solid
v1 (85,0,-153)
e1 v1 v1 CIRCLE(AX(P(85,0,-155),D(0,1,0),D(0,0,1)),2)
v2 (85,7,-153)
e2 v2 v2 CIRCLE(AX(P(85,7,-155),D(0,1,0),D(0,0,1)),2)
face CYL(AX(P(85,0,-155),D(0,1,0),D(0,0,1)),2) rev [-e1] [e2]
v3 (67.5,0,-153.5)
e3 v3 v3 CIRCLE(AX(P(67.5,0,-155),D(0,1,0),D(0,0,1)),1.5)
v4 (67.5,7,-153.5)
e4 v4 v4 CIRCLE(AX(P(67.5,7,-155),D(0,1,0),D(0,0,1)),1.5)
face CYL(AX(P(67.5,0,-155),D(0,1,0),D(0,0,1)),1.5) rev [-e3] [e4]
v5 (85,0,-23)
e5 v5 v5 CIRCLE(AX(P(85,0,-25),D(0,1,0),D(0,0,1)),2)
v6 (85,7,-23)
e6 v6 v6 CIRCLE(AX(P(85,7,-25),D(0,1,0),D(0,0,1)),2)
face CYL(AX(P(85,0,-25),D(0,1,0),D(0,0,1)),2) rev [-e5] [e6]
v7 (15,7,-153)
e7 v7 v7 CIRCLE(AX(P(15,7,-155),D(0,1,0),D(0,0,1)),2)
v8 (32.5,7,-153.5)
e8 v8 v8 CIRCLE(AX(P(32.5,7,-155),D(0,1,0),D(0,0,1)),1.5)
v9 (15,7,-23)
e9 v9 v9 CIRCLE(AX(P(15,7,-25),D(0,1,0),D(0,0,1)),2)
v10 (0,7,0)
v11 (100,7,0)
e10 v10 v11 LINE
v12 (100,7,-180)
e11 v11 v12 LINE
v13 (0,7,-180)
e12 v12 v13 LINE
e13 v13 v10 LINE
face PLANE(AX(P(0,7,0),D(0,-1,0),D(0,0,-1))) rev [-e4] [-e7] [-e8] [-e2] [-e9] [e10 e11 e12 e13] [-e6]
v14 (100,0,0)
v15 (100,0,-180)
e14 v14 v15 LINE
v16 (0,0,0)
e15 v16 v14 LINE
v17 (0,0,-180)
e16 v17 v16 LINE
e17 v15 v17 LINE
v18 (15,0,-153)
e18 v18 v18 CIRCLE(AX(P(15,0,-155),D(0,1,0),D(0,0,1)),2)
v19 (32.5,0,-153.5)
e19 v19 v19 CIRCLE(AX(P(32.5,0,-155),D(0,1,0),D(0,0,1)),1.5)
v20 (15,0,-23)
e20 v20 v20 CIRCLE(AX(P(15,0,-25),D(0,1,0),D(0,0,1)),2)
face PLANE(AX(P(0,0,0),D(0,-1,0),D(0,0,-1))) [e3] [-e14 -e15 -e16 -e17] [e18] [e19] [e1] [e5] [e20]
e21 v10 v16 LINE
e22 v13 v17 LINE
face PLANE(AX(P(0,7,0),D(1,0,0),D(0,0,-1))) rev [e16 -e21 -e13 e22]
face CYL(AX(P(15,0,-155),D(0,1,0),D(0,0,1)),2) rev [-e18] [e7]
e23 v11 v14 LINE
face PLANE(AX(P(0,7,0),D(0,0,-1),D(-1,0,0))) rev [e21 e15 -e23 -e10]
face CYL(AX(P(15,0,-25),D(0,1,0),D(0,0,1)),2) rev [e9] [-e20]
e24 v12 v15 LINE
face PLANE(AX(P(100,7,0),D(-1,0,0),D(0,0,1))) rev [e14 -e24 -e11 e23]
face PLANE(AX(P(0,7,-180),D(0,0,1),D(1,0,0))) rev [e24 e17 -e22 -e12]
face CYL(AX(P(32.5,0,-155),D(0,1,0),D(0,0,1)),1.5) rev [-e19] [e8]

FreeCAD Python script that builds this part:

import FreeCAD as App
import Part
import Sketcher
from FreeCAD import Vector
Q = App.Units.Quantity

doc = App.newDocument("Part")
body = doc.addObject("PartDesign::Body", "Body")

# Sketch on XZ plane
sketch1 = body.newObject("Sketcher::SketchObject", "Sketch")
sketch1.AttachmentSupport = (doc.getObject("XZ_Plane"), [""])
sketch1.MapMode = "FlatFace"
sketch1.addGeometry(Part.LineSegment(Vector(0, -180, 0), Vector(0, 0, 0)), False)
sketch1.addGeometry(Part.LineSegment(Vector(0, 0, 0), Vector(100, 0, 0)), False)
sketch1.addGeometry(Part.LineSegment(Vector(100, 0, 0), Vector(100, -180, 0)), False)
sketch1.addGeometry(Part.LineSegment(Vector(100, -180, 0), Vector(0, -180, 0)), False)
sketch1.addConstraint(Sketcher.Constraint("Coincident", 0, 2, 1, 1))
sketch1.addConstraint(Sketcher.Constraint("Coincident", 1, 2, 2, 1))
sketch1.addConstraint(Sketcher.Constraint("Coincident", 2, 2, 3, 1))
sketch1.addConstraint(Sketcher.Constraint("Coincident", 3, 2, 0, 1))
sketch1.addConstraint(Sketcher.Constraint("Vertical", 0))
sketch1.addConstraint(Sketcher.Constraint("Horizontal", 1))
sketch1.addConstraint(Sketcher.Constraint("Vertical", 2))
sketch1.addConstraint(Sketcher.Constraint("Horizontal", 3))
sketch1.addConstraint(Sketcher.Constraint("Coincident", 0, 2, -1, 1))
sketch1.addConstraint(Sketcher.Constraint("DistanceX", 1, 1, 1, 2, Q("100 mm")))
sketch1.addConstraint(Sketcher.Constraint("DistanceY", 0, 1, 0, 2, Q("180 mm")))
pad1 = body.newObject("PartDesign::Pad", "Pad")
pad1.Profile = sketch1
pad1.Length = 7
pad1.Reversed = True

# Sketch on XZ plane
sketch2 = body.newObject("Sketcher::SketchObject", "Sketch001")
sketch2.AttachmentSupport = (doc.getObject("XZ_Plane"), [""])
sketch2.MapMode = "FlatFace"
sketch2.AttachmentOffset = App.Placement(Vector(0, 0, -7), App.Rotation())
sketch2.addGeometry(Part.Circle(Vector(15, -25, 0), Vector(0, 0, 1), 2), False)
sketch2.addGeometry(Part.Circle(Vector(85, -25, 0), Vector(0, 0, 1), 2), False)
sketch2.addGeometry(Part.Circle(Vector(15, -155, 0), Vector(0, 0, 1), 2), False)
sketch2.addGeometry(Part.Circle(Vector(85, -155, 0), Vector(0, 0, 1), 2), False)
sketch2.addConstraint(Sketcher.Constraint("Equal", 0, 1))
sketch2.addConstraint(Sketcher.Constraint("Equal", 1, 2))
sketch2.addConstraint(Sketcher.Constraint("Equal", 2, 3))
sketch2.addConstraint(Sketcher.Constraint("Horizontal", 0, 3, 1, 3))
sketch2.addConstraint(Sketcher.Constraint("Horizontal", 2, 3, 3, 3))
sketch2.addConstraint(Sketcher.Constraint("Vertical", 0, 3, 2, 3))
sketch2.addConstraint(Sketcher.Constraint("Vertical", 1, 3, 3, 3))
sketch2.addConstraint(Sketcher.Constraint("Diameter", 0, Q("4 mm")))
sketch2.addConstraint(Sketcher.Constraint("DistanceX", -1, 1, 0, 3, Q("15 mm")))
sketch2.addConstraint(Sketcher.Constraint("DistanceY", 0, 3, -1, 1, Q("25 mm")))
sketch2.addConstraint(Sketcher.Constraint("DistanceX", -1, 1, 1, 3, Q("85 mm")))
sketch2.addConstraint(Sketcher.Constraint("DistanceY", 2, 3, -1, 1, Q("155 mm")))
pocket1 = body.newObject("PartDesign::Pocket", "Pocket")
pocket1.Profile = sketch2
pocket1.Type = "ThroughAll"
pocket1.Reversed = True

# Sketch on XZ plane
sketch3 = body.newObject("Sketcher::SketchObject", "Sketch002")
sketch3.AttachmentSupport = (doc.getObject("XZ_Plane"), [""])
sketch3.MapMode = "FlatFace"
sketch3.AttachmentOffset = App.Placement(Vector(0, 0, -7), App.Rotation())
sketch3.addGeometry(Part.Circle(Vector(32.5, -155, 0), Vector(0, 0, 1), 1.5), False)
sketch3.addGeometry(Part.Circle(Vector(67.5, -155, 0), Vector(0, 0, 1), 1.5), False)
sketch3.addConstraint(Sketcher.Constraint("Equal", 0, 1))
sketch3.addConstraint(Sketcher.Constraint("Horizontal", 0, 3, 1, 3))
sketch3.addConstraint(Sketcher.Constraint("Diameter", 0, Q("3 mm")))
sketch3.addConstraint(Sketcher.Constraint("DistanceY", 0, 3, -1, 1, Q("155 mm")))
sketch3.addConstraint(Sketcher.Constraint("DistanceX", 0, 3, 1, 3, Q("35 mm")))
sketch3.addConstraint(Sketcher.Constraint("DistanceX", -1, 1, 0, 3, Q("32.5 mm")))
pocket2 = body.newObject("PartDesign::Pocket", "Pocket001")
pocket2.Profile = sketch3
pocket2.Type = "ThroughAll"
pocket2.Reversed = True

doc.recompute()
